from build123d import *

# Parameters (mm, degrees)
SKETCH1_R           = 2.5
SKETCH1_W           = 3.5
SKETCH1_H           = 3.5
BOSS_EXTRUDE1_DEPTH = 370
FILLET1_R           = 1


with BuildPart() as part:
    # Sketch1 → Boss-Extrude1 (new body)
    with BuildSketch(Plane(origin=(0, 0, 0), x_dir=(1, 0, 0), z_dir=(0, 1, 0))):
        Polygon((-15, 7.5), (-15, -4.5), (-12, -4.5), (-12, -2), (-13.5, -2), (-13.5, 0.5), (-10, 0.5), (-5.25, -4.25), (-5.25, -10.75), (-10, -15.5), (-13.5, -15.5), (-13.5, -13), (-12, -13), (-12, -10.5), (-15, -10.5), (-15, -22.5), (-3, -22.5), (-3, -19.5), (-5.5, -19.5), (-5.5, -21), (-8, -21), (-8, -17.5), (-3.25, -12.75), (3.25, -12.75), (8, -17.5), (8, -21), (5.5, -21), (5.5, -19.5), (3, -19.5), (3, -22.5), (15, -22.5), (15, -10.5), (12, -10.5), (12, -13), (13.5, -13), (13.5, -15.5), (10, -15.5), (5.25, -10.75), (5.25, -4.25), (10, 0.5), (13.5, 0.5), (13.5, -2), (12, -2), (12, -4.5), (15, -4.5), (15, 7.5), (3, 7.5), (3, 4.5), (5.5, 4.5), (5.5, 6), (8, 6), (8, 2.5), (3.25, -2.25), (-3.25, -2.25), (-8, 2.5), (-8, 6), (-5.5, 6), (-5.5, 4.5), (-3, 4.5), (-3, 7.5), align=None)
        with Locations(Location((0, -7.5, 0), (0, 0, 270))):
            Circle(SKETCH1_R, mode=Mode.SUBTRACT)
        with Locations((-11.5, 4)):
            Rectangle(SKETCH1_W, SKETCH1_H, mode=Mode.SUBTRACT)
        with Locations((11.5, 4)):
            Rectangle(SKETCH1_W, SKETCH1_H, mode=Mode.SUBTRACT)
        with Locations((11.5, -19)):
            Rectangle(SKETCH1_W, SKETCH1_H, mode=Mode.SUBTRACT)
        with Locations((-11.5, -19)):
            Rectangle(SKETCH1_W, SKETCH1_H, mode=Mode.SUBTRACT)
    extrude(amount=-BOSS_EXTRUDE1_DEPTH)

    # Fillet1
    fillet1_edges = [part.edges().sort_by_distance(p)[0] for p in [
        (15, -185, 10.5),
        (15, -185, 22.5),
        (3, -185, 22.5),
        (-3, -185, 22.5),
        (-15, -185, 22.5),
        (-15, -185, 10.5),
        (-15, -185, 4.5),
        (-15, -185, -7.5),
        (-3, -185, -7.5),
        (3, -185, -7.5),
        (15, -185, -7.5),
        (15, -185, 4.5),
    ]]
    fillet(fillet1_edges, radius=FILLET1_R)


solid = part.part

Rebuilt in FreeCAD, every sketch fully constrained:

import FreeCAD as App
import Part
import Sketcher
from FreeCAD import Vector
Q = App.Units.Quantity


def edges_at(feature, points):
    """Names of the edges that pass closest to the given points."""
    edges = feature.Shape.Edges
    near = lambda p: min(range(len(edges)), key=lambda i: edges[i].distToShape(Part.Vertex(*p))[0])
    return sorted({f"Edge{near(p) + 1}" for p in points})

doc = App.newDocument("Part")
params = doc.addObject("Spreadsheet::Sheet", "Params")
for row, (alias, value) in enumerate([
    ("sketch1_diameter", "5 mm"),
    ("sketch1_width", "3 mm"),
    ("sketch1_width2", "12 mm"),
    ("sketch1_width3", "1.5 mm"),
    ("sketch1_width4", "3.5 mm"),
    ("pad1_length", "370 mm"),
    ("fillet_radius", "1 mm"),
], start=1):
    params.set(f"A{row}", alias)
    params.set(f"B{row}", "=" + value)
    params.setAlias(f"B{row}", alias)

body = doc.addObject("PartDesign::Body", "Body")

# Sketch on XZ plane
sketch1 = body.newObject("Sketcher::SketchObject", "Sketch")
sketch1.AttachmentSupport = (doc.getObject("XZ_Plane"), [""])
sketch1.MapMode = "FlatFace"
sketch1.addGeometry(Part.LineSegment(Vector(-15, -7.5, 0), Vector(-15, 4.5, 0)), False)
sketch1.addGeometry(Part.LineSegment(Vector(-15, 4.5, 0), Vector(-12, 4.5, 0)), False)
sketch1.addGeometry(Part.LineSegment(Vector(-12, 4.5, 0), Vector(-12, 2, 0)), False)
sketch1.addGeometry(Part.LineSegment(Vector(-12, 2, 0), Vector(-13.5, 2, 0)), False)
sketch1.addGeometry(Part.LineSegment(Vector(-13.5, 2, 0), Vector(-13.5, -0.5, 0)), False)
sketch1.addGeometry(Part.LineSegment(Vector(-13.5, -0.5, 0), Vector(-10, -0.5, 0)), False)
sketch1.addGeometry(Part.LineSegment(Vector(-10, -0.5, 0), Vector(-5.25, 4.25, 0)), False)
sketch1.addGeometry(Part.LineSegment(Vector(-5.25, 4.25, 0), Vector(-5.25, 10.75, 0)), False)
sketch1.addGeometry(Part.LineSegment(Vector(-5.25, 10.75, 0), Vector(-10, 15.5, 0)), False)
sketch1.addGeometry(Part.LineSegment(Vector(-10, 15.5, 0), Vector(-13.5, 15.5, 0)), False)
sketch1.addGeometry(Part.LineSegment(Vector(-13.5, 15.5, 0), Vector(-13.5, 13, 0)), False)
sketch1.addGeometry(Part.LineSegment(Vector(-13.5, 13, 0), Vector(-12, 13, 0)), False)
sketch1.addGeometry(Part.LineSegment(Vector(-12, 13, 0), Vector(-12, 10.5, 0)), False)
sketch1.addGeometry(Part.LineSegment(Vector(-12, 10.5, 0), Vector(-15, 10.5, 0)), False)
sketch1.addGeometry(Part.LineSegment(Vector(-15, 10.5, 0), Vector(-15, 22.5, 0)), False)
sketch1.addGeometry(Part.LineSegment(Vector(-15, 22.5, 0), Vector(-3, 22.5, 0)), False)
sketch1.addGeometry(Part.LineSegment(Vector(-3, 22.5, 0), Vector(-3, 19.5, 0)), False)
sketch1.addGeometry(Part.LineSegment(Vector(-3, 19.5, 0), Vector(-5.5, 19.5, 0)), False)
sketch1.addGeometry(Part.LineSegment(Vector(-5.5, 19.5, 0), Vector(-5.5, 21, 0)), False)
sketch1.addGeometry(Part.LineSegment(Vector(-5.5, 21, 0), Vector(-8, 21, 0)), False)
sketch1.addGeometry(Part.LineSegment(Vector(-8, 21, 0), Vector(-8, 17.5, 0)), False)
sketch1.addGeometry(Part.LineSegment(Vector(-8, 17.5, 0), Vector(-3.25, 12.75, 0)), False)
sketch1.addGeometry(Part.LineSegment(Vector(-3.25, 12.75, 0), Vector(3.25, 12.75, 0)), False)
sketch1.addGeometry(Part.LineSegment(Vector(3.25, 12.75, 0), Vector(8, 17.5, 0)), False)
sketch1.addGeometry(Part.LineSegment(Vector(8, 17.5, 0), Vector(8, 21, 0)), False)
sketch1.addGeometry(Part.LineSegment(Vector(8, 21, 0), Vector(5.5, 21, 0)), False)
sketch1.addGeometry(Part.LineSegment(Vector(5.5, 21, 0), Vector(5.5, 19.5, 0)), False)
sketch1.addGeometry(Part.LineSegment(Vector(5.5, 19.5, 0), Vector(3, 19.5, 0)), False)
sketch1.addGeometry(Part.LineSegment(Vector(3, 19.5, 0), Vector(3, 22.5, 0)), False)
sketch1.addGeometry(Part.LineSegment(Vector(3, 22.5, 0), Vector(15, 22.5, 0)), False)
sketch1.addGeometry(Part.LineSegment(Vector(15, 22.5, 0), Vector(15, 10.5, 0)), False)
sketch1.addGeometry(Part.LineSegment(Vector(15, 10.5, 0), Vector(12, 10.5, 0)), False)
sketch1.addGeometry(Part.LineSegment(Vector(12, 10.5, 0), Vector(12, 13, 0)), False)
sketch1.addGeometry(Part.LineSegment(Vector(12, 13, 0), Vector(13.5, 13, 0)), False)
sketch1.addGeometry(Part.LineSegment(Vector(13.5, 13, 0), Vector(13.5, 15.5, 0)), False)
sketch1.addGeometry(Part.LineSegment(Vector(13.5, 15.5, 0), Vector(10, 15.5, 0)), False)
sketch1.addGeometry(Part.LineSegment(Vector(10, 15.5, 0), Vector(5.25, 10.75, 0)), False)
sketch1.addGeometry(Part.LineSegment(Vector(5.25, 10.75, 0), Vector(5.25, 4.25, 0)), False)
sketch1.addGeometry(Part.LineSegment(Vector(5.25, 4.25, 0), Vector(10, -0.5, 0)), False)
sketch1.addGeometry(Part.LineSegment(Vector(10, -0.5, 0), Vector(13.5, -0.5, 0)), False)
sketch1.addGeometry(Part.LineSegment(Vector(13.5, -0.5, 0), Vector(13.5, 2, 0)), False)
sketch1.addGeometry(Part.LineSegment(Vector(13.5, 2, 0), Vector(12, 2, 0)), False)
sketch1.addGeometry(Part.LineSegment(Vector(12, 2, 0), Vector(12, 4.5, 0)), False)
sketch1.addGeometry(Part.LineSegment(Vector(12, 4.5, 0), Vector(15, 4.5, 0)), False)
sketch1.addGeometry(Part.LineSegment(Vector(15, 4.5, 0), Vector(15, -7.5, 0)), False)
sketch1.addGeometry(Part.LineSegment(Vector(15, -7.5, 0), Vector(3, -7.5, 0)), False)
sketch1.addGeometry(Part.LineSegment(Vector(3, -7.5, 0), Vector(3, -4.5, 0)), False)
sketch1.addGeometry(Part.LineSegment(Vector(3, -4.5, 0), Vector(5.5, -4.5, 0)), False)
sketch1.addGeometry(Part.LineSegment(Vector(5.5, -4.5, 0), Vector(5.5, -6, 0)), False)
sketch1.addGeometry(Part.LineSegment(Vector(5.5, -6, 0), Vector(8, -6, 0)), False)
sketch1.addGeometry(Part.LineSegment(Vector(8, -6, 0), Vector(8, -2.5, 0)), False)
sketch1.addGeometry(Part.LineSegment(Vector(8, -2.5, 0), Vector(3.25, 2.25, 0)), False)
sketch1.addGeometry(Part.LineSegment(Vector(3.25, 2.25, 0), Vector(-3.25, 2.25, 0)), False)
sketch1.addGeometry(Part.LineSegment(Vector(-3.25, 2.25, 0), Vector(-8, -2.5, 0)), False)
sketch1.addGeometry(Part.LineSegment(Vector(-8, -2.5, 0), Vector(-8, -6, 0)), False)
sketch1.addGeometry(Part.LineSegment(Vector(-8, -6, 0), Vector(-5.5, -6, 0)), False)
sketch1.addGeometry(Part.LineSegment(Vector(-5.5, -6, 0), Vector(-5.5, -4.5, 0)), False)
sketch1.addGeometry(Part.LineSegment(Vector(-5.5, -4.5, 0), Vector(-3, -4.5, 0)), False)
sketch1.addGeometry(Part.LineSegment(Vector(-3, -4.5, 0), Vector(-3, -7.5, 0)), False)
sketch1.addGeometry(Part.LineSegment(Vector(-3, -7.5, 0), Vector(-15, -7.5, 0)), False)
sketch1.addGeometry(Part.LineSegment(Vector(-9.75, 20.75, 0), Vector(-13.25, 20.75, 0)), False)
sketch1.addGeometry(Part.LineSegment(Vector(-13.25, 20.75, 0), Vector(-13.25, 17.25, 0)), False)
sketch1.addGeometry(Part.LineSegment(Vector(-13.25, 17.25, 0), Vector(-9.75, 17.25, 0)), False)
sketch1.addGeometry(Part.LineSegment(Vector(-9.75, 17.25, 0), Vector(-9.75, 20.75, 0)), False)
sketch1.addGeometry(Part.LineSegment(Vector(13.25, 20.75, 0), Vector(9.75, 20.75, 0)), False)
sketch1.addGeometry(Part.LineSegment(Vector(9.75, 20.75, 0), Vector(9.75, 17.25, 0)), False)
sketch1.addGeometry(Part.LineSegment(Vector(9.75, 17.25, 0), Vector(13.25, 17.25, 0)), False)
sketch1.addGeometry(Part.LineSegment(Vector(13.25, 17.25, 0), Vector(13.25, 20.75, 0)), False)
sketch1.addGeometry(Part.LineSegment(Vector(-9.75, -2.25, 0), Vector(-13.25, -2.25, 0)), False)
sketch1.addGeometry(Part.LineSegment(Vector(-13.25, -2.25, 0), Vector(-13.25, -5.75, 0)), False)
sketch1.addGeometry(Part.LineSegment(Vector(-13.25, -5.75, 0), Vector(-9.75, -5.75, 0)), False)
sketch1.addGeometry(Part.LineSegment(Vector(-9.75, -5.75, 0), Vector(-9.75, -2.25, 0)), False)
sketch1.addGeometry(Part.Circle(Vector(0, 7.5, 0), Vector(0, 0, 1), 2.5), False)
sketch1.addGeometry(Part.LineSegment(Vector(13.25, -2.25, 0), Vector(9.75, -2.25, 0)), False)
sketch1.addGeometry(Part.LineSegment(Vector(9.75, -2.25, 0), Vector(9.75, -5.75, 0)), False)
sketch1.addGeometry(Part.LineSegment(Vector(9.75, -5.75, 0), Vector(13.25, -5.75, 0)), False)
sketch1.addGeometry(Part.LineSegment(Vector(13.25, -5.75, 0), Vector(13.25, -2.25, 0)), False)
sketch1.addConstraint(Sketcher.Constraint("Coincident", 0, 2, 1, 1))
sketch1.addConstraint(Sketcher.Constraint("Coincident", 1, 2, 2, 1))
sketch1.addConstraint(Sketcher.Constraint("Coincident", 2, 2, 3, 1))
sketch1.addConstraint(Sketcher.Constraint("Coincident", 3, 2, 4, 1))
sketch1.addConstraint(Sketcher.Constraint("Coincident", 4, 2, 5, 1))
sketch1.addConstraint(Sketcher.Constraint("Coincident", 5, 2, 6, 1))
sketch1.addConstraint(Sketcher.Constraint("Coincident", 6, 2, 7, 1))
sketch1.addConstraint(Sketcher.Constraint("Coincident", 7, 2, 8, 1))
sketch1.addConstraint(Sketcher.Constraint("Coincident", 8, 2, 9, 1))
sketch1.addConstraint(Sketcher.Constraint("Coincident", 9, 2, 10, 1))
sketch1.addConstraint(Sketcher.Constraint("Coincident", 10, 2, 11, 1))
sketch1.addConstraint(Sketcher.Constraint("Coincident", 11, 2, 12, 1))
sketch1.addConstraint(Sketcher.Constraint("Coincident", 12, 2, 13, 1))
sketch1.addConstraint(Sketcher.Constraint("Coincident", 13, 2, 14, 1))
sketch1.addConstraint(Sketcher.Constraint("Coincident", 14, 2, 15, 1))
sketch1.addConstraint(Sketcher.Constraint("Coincident", 15, 2, 16, 1))
sketch1.addConstraint(Sketcher.Constraint("Coincident", 16, 2, 17, 1))
sketch1.addConstraint(Sketcher.Constraint("Coincident", 17, 2, 18, 1))
sketch1.addConstraint(Sketcher.Constraint("Coincident", 18, 2, 19, 1))
sketch1.addConstraint(Sketcher.Constraint("Coincident", 19, 2, 20, 1))
sketch1.addConstraint(Sketcher.Constraint("Coincident", 20, 2, 21, 1))
sketch1.addConstraint(Sketcher.Constraint("Coincident", 21, 2, 22, 1))
sketch1.addConstraint(Sketcher.Constraint("Coincident", 22, 2, 23, 1))
sketch1.addConstraint(Sketcher.Constraint("Coincident", 23, 2, 24, 1))
sketch1.addConstraint(Sketcher.Constraint("Coincident", 24, 2, 25, 1))
sketch1.addConstraint(Sketcher.Constraint("Coincident", 25, 2, 26, 1))
sketch1.addConstraint(Sketcher.Constraint("Coincident", 26, 2, 27, 1))
sketch1.addConstraint(Sketcher.Constraint("Coincident", 27, 2, 28, 1))
sketch1.addConstraint(Sketcher.Constraint("Coincident", 28, 2, 29, 1))
sketch1.addConstraint(Sketcher.Constraint("Coincident", 29, 2, 30, 1))
sketch1.addConstraint(Sketcher.Constraint("Coincident", 30, 2, 31, 1))
sketch1.addConstraint(Sketcher.Constraint("Coincident", 31, 2, 32, 1))
sketch1.addConstraint(Sketcher.Constraint("Coincident", 32, 2, 33, 1))
sketch1.addConstraint(Sketcher.Constraint("Coincident", 33, 2, 34, 1))
sketch1.addConstraint(Sketcher.Constraint("Coincident", 34, 2, 35, 1))
sketch1.addConstraint(Sketcher.Constraint("Coincident", 35, 2, 36, 1))
sketch1.addConstraint(Sketcher.Constraint("Coincident", 36, 2, 37, 1))
sketch1.addConstraint(Sketcher.Constraint("Coincident", 37, 2, 38, 1))
sketch1.addConstraint(Sketcher.Constraint("Coincident", 38, 2, 39, 1))
sketch1.addConstraint(Sketcher.Constraint("Coincident", 39, 2, 40, 1))
sketch1.addConstraint(Sketcher.Constraint("Coincident", 40, 2, 41, 1))
sketch1.addConstraint(Sketcher.Constraint("Coincident", 41, 2, 42, 1))
sketch1.addConstraint(Sketcher.Constraint("Coincident", 42, 2, 43, 1))
sketch1.addConstraint(Sketcher.Constraint("Coincident", 43, 2, 44, 1))
sketch1.addConstraint(Sketcher.Constraint("Coincident", 44, 2, 45, 1))
sketch1.addConstraint(Sketcher.Constraint("Coincident", 45, 2, 46, 1))
sketch1.addConstraint(Sketcher.Constraint("Coincident", 46, 2, 47, 1))
sketch1.addConstraint(Sketcher.Constraint("Coincident", 47, 2, 48, 1))
sketch1.addConstraint(Sketcher.Constraint("Coincident", 48, 2, 49, 1))
sketch1.addConstraint(Sketcher.Constraint("Coincident", 49, 2, 50, 1))
sketch1.addConstraint(Sketcher.Constraint("Coincident", 50, 2, 51, 1))
sketch1.addConstraint(Sketcher.Constraint("Coincident", 51, 2, 52, 1))
sketch1.addConstraint(Sketcher.Constraint("Coincident", 52, 2, 53, 1))
sketch1.addConstraint(Sketcher.Constraint("Coincident", 53, 2, 54, 1))
sketch1.addConstraint(Sketcher.Constraint("Coincident", 54, 2, 55, 1))
sketch1.addConstraint(Sketcher.Constraint("Coincident", 55, 2, 56, 1))
sketch1.addConstraint(Sketcher.Constraint("Coincident", 56, 2, 57, 1))
sketch1.addConstraint(Sketcher.Constraint("Coincident", 57, 2, 58, 1))
sketch1.addConstraint(Sketcher.Constraint("Coincident", 58, 2, 59, 1))
sketch1.addConstraint(Sketcher.Constraint("Coincident", 59, 2, 0, 1))
sketch1.addConstraint(Sketcher.Constraint("Coincident", 60, 2, 61, 1))
sketch1.addConstraint(Sketcher.Constraint("Coincident", 61, 2, 62, 1))
sketch1.addConstraint(Sketcher.Constraint("Coincident", 62, 2, 63, 1))
sketch1.addConstraint(Sketcher.Constraint("Coincident", 63, 2, 60, 1))
sketch1.addConstraint(Sketcher.Constraint("Coincident", 64, 2, 65, 1))
sketch1.addConstraint(Sketcher.Constraint("Coincident", 65, 2, 66, 1))
sketch1.addConstraint(Sketcher.Constraint("Coincident", 66, 2, 67, 1))
sketch1.addConstraint(Sketcher.Constraint("Coincident", 67, 2, 64, 1))
sketch1.addConstraint(Sketcher.Constraint("Coincident", 68, 2, 69, 1))
sketch1.addConstraint(Sketcher.Constraint("Coincident", 69, 2, 70, 1))
sketch1.addConstraint(Sketcher.Constraint("Coincident", 70, 2, 71, 1))
sketch1.addConstraint(Sketcher.Constraint("Coincident", 71, 2, 68, 1))
sketch1.addConstraint(Sketcher.Constraint("Coincident", 73, 2, 74, 1))
sketch1.addConstraint(Sketcher.Constraint("Coincident", 74, 2, 75, 1))
sketch1.addConstraint(Sketcher.Constraint("Coincident", 75, 2, 76, 1))
sketch1.addConstraint(Sketcher.Constraint("Coincident", 76, 2, 73, 1))
sketch1.addConstraint(Sketcher.Constraint("Vertical", 0))
sketch1.addConstraint(Sketcher.Constraint("Horizontal", 1))
sketch1.addConstraint(Sketcher.Constraint("Vertical", 2))
sketch1.addConstraint(Sketcher.Constraint("Horizontal", 3))
sketch1.addConstraint(Sketcher.Constraint("Vertical", 4))
sketch1.addConstraint(Sketcher.Constraint("Horizontal", 5))
sketch1.addConstraint(Sketcher.Constraint("Vertical", 7))
sketch1.addConstraint(Sketcher.Constraint("Horizontal", 9))
sketch1.addConstraint(Sketcher.Constraint("Vertical", 10))
sketch1.addConstraint(Sketcher.Constraint("Horizontal", 11))
sketch1.addConstraint(Sketcher.Constraint("Vertical", 12))
sketch1.addConstraint(Sketcher.Constraint("Horizontal", 13))
sketch1.addConstraint(Sketcher.Constraint("Vertical", 14))
sketch1.addConstraint(Sketcher.Constraint("Horizontal", 15))
sketch1.addConstraint(Sketcher.Constraint("Vertical", 16))
sketch1.addConstraint(Sketcher.Constraint("Horizontal", 17))
sketch1.addConstraint(Sketcher.Constraint("Vertical", 18))
sketch1.addConstraint(Sketcher.Constraint("Horizontal", 19))
sketch1.addConstraint(Sketcher.Constraint("Vertical", 20))
sketch1.addConstraint(Sketcher.Constraint("Horizontal", 22))
sketch1.addConstraint(Sketcher.Constraint("Vertical", 24))
sketch1.addConstraint(Sketcher.Constraint("Horizontal", 25))
sketch1.addConstraint(Sketcher.Constraint("Vertical", 26))
sketch1.addConstraint(Sketcher.Constraint("Horizontal", 27))
sketch1.addConstraint(Sketcher.Constraint("Vertical", 28))
sketch1.addConstraint(Sketcher.Constraint("Horizontal", 29))
sketch1.addConstraint(Sketcher.Constraint("Vertical", 30))
sketch1.addConstraint(Sketcher.Constraint("Horizontal", 31))
sketch1.addConstraint(Sketcher.Constraint("Vertical", 32))
sketch1.addConstraint(Sketcher.Constraint("Horizontal", 33))
sketch1.addConstraint(Sketcher.Constraint("Vertical", 34))
sketch1.addConstraint(Sketcher.Constraint("Horizontal", 35))
sketch1.addConstraint(Sketcher.Constraint("Vertical", 37))
sketch1.addConstraint(Sketcher.Constraint("Horizontal", 39))
sketch1.addConstraint(Sketcher.Constraint("Vertical", 40))
sketch1.addConstraint(Sketcher.Constraint("Horizontal", 41))
sketch1.addConstraint(Sketcher.Constraint("Vertical", 42))
sketch1.addConstraint(Sketcher.Constraint("Horizontal", 43))
sketch1.addConstraint(Sketcher.Constraint("Vertical", 44))
sketch1.addConstraint(Sketcher.Constraint("Horizontal", 45))
sketch1.addConstraint(Sketcher.Constraint("Vertical", 46))
sketch1.addConstraint(Sketcher.Constraint("Horizontal", 47))
sketch1.addConstraint(Sketcher.Constraint("Vertical", 48))
sketch1.addConstraint(Sketcher.Constraint("Horizontal", 49))
sketch1.addConstraint(Sketcher.Constraint("Vertical", 50))
sketch1.addConstraint(Sketcher.Constraint("Horizontal", 52))
sketch1.addConstraint(Sketcher.Constraint("Vertical", 54))
sketch1.addConstraint(Sketcher.Constraint("Horizontal", 55))
sketch1.addConstraint(Sketcher.Constraint("Vertical", 56))
sketch1.addConstraint(Sketcher.Constraint("Horizontal", 57))
sketch1.addConstraint(Sketcher.Constraint("Vertical", 58))
sketch1.addConstraint(Sketcher.Constraint("Horizontal", 59))
sketch1.addConstraint(Sketcher.Constraint("Horizontal", 60))
sketch1.addConstraint(Sketcher.Constraint("Vertical", 61))
sketch1.addConstraint(Sketcher.Constraint("Horizontal", 62))
sketch1.addConstraint(Sketcher.Constraint("Vertical", 63))
sketch1.addConstraint(Sketcher.Constraint("Horizontal", 64))
sketch1.addConstraint(Sketcher.Constraint("Vertical", 65))
sketch1.addConstraint(Sketcher.Constraint("Horizontal", 66))
sketch1.addConstraint(Sketcher.Constraint("Vertical", 67))
sketch1.addConstraint(Sketcher.Constraint("Horizontal", 68))
sketch1.addConstraint(Sketcher.Constraint("Vertical", 69))
sketch1.addConstraint(Sketcher.Constraint("Horizontal", 70))
sketch1.addConstraint(Sketcher.Constraint("Vertical", 71))
sketch1.addConstraint(Sketcher.Constraint("Horizontal", 73))
sketch1.addConstraint(Sketcher.Constraint("Vertical", 74))
sketch1.addConstraint(Sketcher.Constraint("Horizontal", 75))
sketch1.addConstraint(Sketcher.Constraint("Vertical", 76))
sketch1.addConstraint(Sketcher.Constraint("Symmetric", 20, 2, 23, 2, -2))
sketch1.addConstraint(Sketcher.Constraint("Symmetric", 18, 2, 25, 2, -2))
sketch1.addConstraint(Sketcher.Constraint("Symmetric", 16, 2, 27, 2, -2))
sketch1.addConstraint(Sketcher.Constraint("Symmetric", 14, 2, 29, 2, -2))
sketch1.addConstraint(Sketcher.Constraint("Symmetric", 12, 2, 31, 2, -2))
sketch1.addConstraint(Sketcher.Constraint("Symmetric", 10, 2, 33, 2, -2))
sketch1.addConstraint(Sketcher.Constraint("Symmetric", 8, 2, 35, 2, -2))
sketch1.addConstraint(Sketcher.Constraint("Symmetric", 7, 2, 36, 2, -2))
sketch1.addConstraint(Sketcher.Constraint("Symmetric", 5, 2, 38, 2, -2))
sketch1.addConstraint(Sketcher.Constraint("Symmetric", 3, 2, 40, 2, -2))
sketch1.addConstraint(Sketcher.Constraint("Symmetric", 1, 2, 42, 2, -2))
sketch1.addConstraint(Sketcher.Constraint("Symmetric", 50, 2, 53, 2, -2))
sketch1.addConstraint(Sketcher.Constraint("Symmetric", 48, 2, 55, 2, -2))
sketch1.addConstraint(Sketcher.Constraint("Symmetric", 46, 2, 57, 2, -2))
sketch1.addConstraint(Sketcher.Constraint("Symmetric", 44, 2, 59, 2, -2))
sketch1.addConstraint(Sketcher.Constraint("Symmetric", 63, 2, 64, 2, -2))
sketch1.addConstraint(Sketcher.Constraint("Symmetric", 61, 2, 66, 2, -2))
sketch1.addConstraint(Sketcher.Constraint("Symmetric", 71, 2, 73, 2, -2))
sketch1.addConstraint(Sketcher.Constraint("Symmetric", 69, 2, 75, 2, -2))
sketch1.addConstraint(Sketcher.Constraint("PointOnObject", 72, 3, -2))
sketch1.addConstraint(Sketcher.Constraint("Perpendicular", 6, 8))
sketch1.addConstraint(Sketcher.Constraint("Parallel", 8, 21))
sketch1.addConstraint(Sketcher.Constraint("Perpendicular", 21, 23))
sketch1.addConstraint(Sketcher.Constraint("Parallel", 23, 36))
sketch1.addConstraint(Sketcher.Constraint("Perpendicular", 36, 38))
sketch1.addConstraint(Sketcher.Constraint("Parallel", 38, 51))
sketch1.addConstraint(Sketcher.Constraint("Perpendicular", 51, 53))
sketch1.addConstraint(Sketcher.Constraint("Vertical", 5, 2, 8, 2))
sketch1.addConstraint(Sketcher.Constraint("Vertical", 4, 2, 9, 2))
sketch1.addConstraint(Sketcher.Constraint("Vertical", 2, 2, 11, 2))
sketch1.addConstraint(Sketcher.Constraint("Vertical", 0, 2, 13, 2))
sketch1.addConstraint(Sketcher.Constraint("Vertical", 28, 2, 45, 2))
sketch1.addConstraint(Sketcher.Constraint("Vertical", 26, 2, 47, 2))
sketch1.addConstraint(Sketcher.Constraint("Vertical", 24, 2, 49, 2))
sketch1.addConstraint(Sketcher.Constraint("Vertical", 22, 2, 51, 2))
sketch1.addConstraint(Sketcher.Constraint("Vertical", 61, 2, 68, 2))
sketch1.addConstraint(Sketcher.Constraint("Vertical", 63, 2, 70, 2))
sketch1.addConstraint(Sketcher.Constraint("Equal", 17, 19))
sketch1.addConstraint(Sketcher.Constraint("Equal", 39, 60))
sketch1.addConstraint(Sketcher.Constraint("Equal", 59, 0))
sketch1.addConstraint(Sketcher.Constraint("Equal", 57, 2))
sketch1.addConstraint(Sketcher.Constraint("Equal", 2, 4))
sketch1.addConstraint(Sketcher.Constraint("Equal", 52, 7))
sketch1.addConstraint(Sketcher.Constraint("Equal", 4, 10))
sketch1.addConstraint(Sketcher.Constraint("Equal", 10, 12))
sketch1.addConstraint(Sketcher.Constraint("Equal", 0, 14))
sketch1.addConstraint(Sketcher.Constraint("Equal", 43, 16))
sketch1.addConstraint(Sketcher.Constraint("Equal", 41, 18))
sketch1.addConstraint(Sketcher.Constraint("Equal", 75, 20))
sketch1.addConstraint(Sketcher.Constraint("Equal", 28, 46))
sketch1.addConstraint(Sketcher.Constraint("Equal", 26, 48))
sketch1.addConstraint(Sketcher.Constraint("Equal", 24, 50))
sketch1.addConstraint(Sketcher.Constraint("Equal", 54, 61))
sketch1.addConstraint(Sketcher.Constraint("Equal", 67, 69))
sketch1.addConstraint(Sketcher.Constraint("Equal", 8, 21))
sketch1.addConstraint(Sketcher.Constraint("Diameter", 72, Q("5 mm")))
sketch1.addConstraint(Sketcher.Constraint("DistanceX", 1, 1, 1, 2, Q("3 mm")))
sketch1.addConstraint(Sketcher.Constraint("DistanceX", 15, 1, 15, 2, Q("12 mm")))
sketch1.addConstraint(Sketcher.Constraint("DistanceX", 3, 2, 3, 1, Q("1.5 mm")))
sketch1.addConstraint(Sketcher.Constraint("DistanceX", 5, 1, 5, 2, Q("3.5 mm")))
sketch1.addConstraint(Sketcher.Constraint("DistanceX", 17, 2, 17, 1, Q("2.5 mm")))
sketch1.addConstraint(Sketcher.Constraint("DistanceX", 22, 1, 22, 2, Q("6.5 mm")))
sketch1.addConstraint(Sketcher.Constraint("DistanceX", 0, 2, -1, 1, Q("15 mm")))
sketch1.addConstraint(Sketcher.Constraint("DistanceY", -1, 1, 2, 2, Q("2 mm")))
sketch1.addConstraint(Sketcher.Constraint("DistanceY", -1, 1, 72, 3, Q("7.5 mm")))
sketch1.addConstraint(Sketcher.Constraint("DistanceX", 60, 2, -1, 1, Q("13.25 mm")))
sketch1.addConstraint(Sketcher.Constraint("DistanceY", -1, 1, 60, 2, Q("20.75 mm")))
sketch1.addConstraint(Sketcher.Constraint("DistanceY", 68, 2, -1, 1, Q("2.25 mm")))
sketch1.setExpression("Constraints[199]", "Params.sketch1_diameter")
sketch1.setExpression("Constraints[200]", "Params.sketch1_width")
sketch1.setExpression("Constraints[201]", "Params.sketch1_width2")
sketch1.setExpression("Constraints[202]", "Params.sketch1_width3")
sketch1.setExpression("Constraints[203]", "Params.sketch1_width4")
pad1 = body.newObject("PartDesign::Pad", "Pad")
pad1.Profile = sketch1
pad1.setExpression("Length", "Params.pad1_length")
doc.recompute()

fillet = body.newObject("PartDesign::Fillet", "Fillet")
fillet.Base = (pad1, edges_at(pad1, [
    (15, -185, 10.5),
    (15, -185, 22.5),
    (3, -185, 22.5),
    (-3, -185, 22.5),
    (-15, -185, 22.5),
    (-15, -185, 10.5),
    (-15, -185, 4.5),
    (-15, -185, -7.5),
    (-3, -185, -7.5),
    (3, -185, -7.5),
    (15, -185, -7.5),
    (15, -185, 4.5),
]))
fillet.setExpression("Radius", "Params.fillet_radius")

doc.recompute()
